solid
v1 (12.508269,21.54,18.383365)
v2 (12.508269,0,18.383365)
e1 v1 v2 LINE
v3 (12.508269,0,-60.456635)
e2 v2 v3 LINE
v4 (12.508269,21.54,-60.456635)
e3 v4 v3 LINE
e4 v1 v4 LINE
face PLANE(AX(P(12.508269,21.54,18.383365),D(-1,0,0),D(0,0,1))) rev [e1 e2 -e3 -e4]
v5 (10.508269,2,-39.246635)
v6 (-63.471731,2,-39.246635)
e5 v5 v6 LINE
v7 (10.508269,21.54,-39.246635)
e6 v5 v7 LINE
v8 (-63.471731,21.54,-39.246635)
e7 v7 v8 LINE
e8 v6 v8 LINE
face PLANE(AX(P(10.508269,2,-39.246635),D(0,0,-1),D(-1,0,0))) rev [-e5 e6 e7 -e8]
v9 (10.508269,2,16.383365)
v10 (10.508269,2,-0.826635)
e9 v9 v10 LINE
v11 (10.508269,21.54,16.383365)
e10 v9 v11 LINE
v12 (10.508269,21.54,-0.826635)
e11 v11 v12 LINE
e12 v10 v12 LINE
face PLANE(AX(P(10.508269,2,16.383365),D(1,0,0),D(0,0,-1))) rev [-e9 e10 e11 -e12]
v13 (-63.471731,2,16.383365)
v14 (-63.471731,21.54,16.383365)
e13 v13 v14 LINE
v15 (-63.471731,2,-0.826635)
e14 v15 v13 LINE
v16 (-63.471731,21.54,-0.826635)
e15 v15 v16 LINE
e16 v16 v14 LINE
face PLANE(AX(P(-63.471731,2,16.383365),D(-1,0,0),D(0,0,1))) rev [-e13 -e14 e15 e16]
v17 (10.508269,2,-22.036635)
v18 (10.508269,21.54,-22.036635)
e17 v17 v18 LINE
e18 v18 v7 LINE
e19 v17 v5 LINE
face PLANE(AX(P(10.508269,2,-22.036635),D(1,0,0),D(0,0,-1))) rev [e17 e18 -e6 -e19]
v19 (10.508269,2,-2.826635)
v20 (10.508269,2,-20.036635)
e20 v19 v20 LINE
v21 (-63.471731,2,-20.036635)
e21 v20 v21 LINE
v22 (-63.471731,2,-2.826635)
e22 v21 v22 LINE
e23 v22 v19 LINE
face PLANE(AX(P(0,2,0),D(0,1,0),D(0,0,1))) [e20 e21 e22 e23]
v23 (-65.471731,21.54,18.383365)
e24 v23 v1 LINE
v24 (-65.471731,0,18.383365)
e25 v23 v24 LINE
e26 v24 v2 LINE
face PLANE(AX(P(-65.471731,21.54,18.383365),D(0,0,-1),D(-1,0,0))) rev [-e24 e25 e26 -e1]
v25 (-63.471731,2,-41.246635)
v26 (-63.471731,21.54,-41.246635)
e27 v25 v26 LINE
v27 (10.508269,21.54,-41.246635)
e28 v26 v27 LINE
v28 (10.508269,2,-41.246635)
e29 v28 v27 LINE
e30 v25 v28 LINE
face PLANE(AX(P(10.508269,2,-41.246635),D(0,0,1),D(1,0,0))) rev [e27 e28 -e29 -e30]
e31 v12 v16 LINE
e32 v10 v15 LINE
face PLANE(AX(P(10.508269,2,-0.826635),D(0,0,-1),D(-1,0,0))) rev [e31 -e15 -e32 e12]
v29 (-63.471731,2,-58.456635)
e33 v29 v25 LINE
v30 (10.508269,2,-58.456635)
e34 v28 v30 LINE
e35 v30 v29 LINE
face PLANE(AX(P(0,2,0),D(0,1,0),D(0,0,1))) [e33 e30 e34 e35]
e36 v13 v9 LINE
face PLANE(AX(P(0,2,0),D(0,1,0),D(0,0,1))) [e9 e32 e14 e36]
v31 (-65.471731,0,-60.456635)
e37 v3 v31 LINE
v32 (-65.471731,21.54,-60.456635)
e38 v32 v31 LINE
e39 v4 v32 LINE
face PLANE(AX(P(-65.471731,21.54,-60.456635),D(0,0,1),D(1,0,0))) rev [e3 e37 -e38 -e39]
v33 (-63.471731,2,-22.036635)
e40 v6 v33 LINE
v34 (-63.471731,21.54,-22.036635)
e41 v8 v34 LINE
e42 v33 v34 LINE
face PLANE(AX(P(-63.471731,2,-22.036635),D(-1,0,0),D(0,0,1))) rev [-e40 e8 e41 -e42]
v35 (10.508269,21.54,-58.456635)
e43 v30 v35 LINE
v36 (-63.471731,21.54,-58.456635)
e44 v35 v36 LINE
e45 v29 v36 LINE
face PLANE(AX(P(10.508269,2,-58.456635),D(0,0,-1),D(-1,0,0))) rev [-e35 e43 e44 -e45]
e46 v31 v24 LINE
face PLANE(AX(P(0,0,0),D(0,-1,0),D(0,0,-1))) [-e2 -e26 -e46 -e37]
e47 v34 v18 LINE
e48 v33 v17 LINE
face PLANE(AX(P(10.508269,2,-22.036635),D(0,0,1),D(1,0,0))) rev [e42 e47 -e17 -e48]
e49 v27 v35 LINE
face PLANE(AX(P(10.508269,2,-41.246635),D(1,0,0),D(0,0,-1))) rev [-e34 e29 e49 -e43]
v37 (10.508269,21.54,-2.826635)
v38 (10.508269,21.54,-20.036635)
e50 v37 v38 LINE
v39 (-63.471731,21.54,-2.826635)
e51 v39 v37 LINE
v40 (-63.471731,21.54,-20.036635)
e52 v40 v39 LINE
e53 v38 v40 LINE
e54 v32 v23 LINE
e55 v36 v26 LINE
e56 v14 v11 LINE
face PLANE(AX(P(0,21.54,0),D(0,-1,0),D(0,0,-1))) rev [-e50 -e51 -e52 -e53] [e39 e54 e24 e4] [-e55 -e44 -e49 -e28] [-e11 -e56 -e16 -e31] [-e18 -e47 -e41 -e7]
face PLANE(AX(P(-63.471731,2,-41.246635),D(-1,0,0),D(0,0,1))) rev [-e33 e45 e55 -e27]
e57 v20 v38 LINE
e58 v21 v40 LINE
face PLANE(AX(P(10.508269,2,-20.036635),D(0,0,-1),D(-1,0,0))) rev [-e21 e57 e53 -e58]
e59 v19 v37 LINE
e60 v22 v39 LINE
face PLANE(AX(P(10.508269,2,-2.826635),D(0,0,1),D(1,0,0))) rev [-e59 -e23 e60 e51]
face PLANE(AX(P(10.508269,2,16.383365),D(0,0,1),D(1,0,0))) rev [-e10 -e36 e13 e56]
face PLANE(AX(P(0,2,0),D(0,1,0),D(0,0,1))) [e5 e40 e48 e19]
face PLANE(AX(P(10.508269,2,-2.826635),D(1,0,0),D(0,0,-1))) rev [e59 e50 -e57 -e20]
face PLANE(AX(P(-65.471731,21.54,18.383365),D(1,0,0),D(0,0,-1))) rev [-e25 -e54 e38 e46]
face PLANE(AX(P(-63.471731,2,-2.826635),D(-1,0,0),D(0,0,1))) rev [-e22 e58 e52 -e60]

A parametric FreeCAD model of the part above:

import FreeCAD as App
import Part
import Sketcher

V = App.Vector
Q = App.Units.Quantity

doc = App.newDocument("Part")
params = doc.addObject("Spreadsheet::Sheet", "Params")
for row, (alias, value) in enumerate([
    ("sketch1_width", "77.98 mm"),
    ("sketch1_height", "78.84 mm"),
    ("pad1_length", "21.54 mm"),
    ("sketch2_width", "73.98 mm"),
    ("sketch2_height", "17.21 mm"),
    ("pocket1_length", "19.54 mm"),
], start=1):
    params.set(f"A{row}", alias)
    params.set(f"B{row}", "=" + value)
    params.setAlias(f"B{row}", alias)

body = doc.addObject("PartDesign::Body", "Body")

# Sketch on XZ plane
sketch1 = body.newObject("Sketcher::SketchObject", "Sketch")
sketch1.AttachmentSupport = (doc.getObject("XZ_Plane"), [""])
sketch1.MapMode = "FlatFace"
sketch1.addGeometry(Part.LineSegment(V(-65, -60, 0), V(-65, 18, 0)), False)
sketch1.addGeometry(Part.LineSegment(V(-65, 18, 0), V(13, 18, 0)), False)
sketch1.addGeometry(Part.LineSegment(V(13, 18, 0), V(13, -60, 0)), False)
sketch1.addGeometry(Part.LineSegment(V(13, -60, 0), V(-65, -60, 0)), False)
sketch1.addConstraint(Sketcher.Constraint("Coincident", 0, 2, 1, 1))
sketch1.addConstraint(Sketcher.Constraint("Coincident", 1, 2, 2, 1))
sketch1.addConstraint(Sketcher.Constraint("Coincident", 2, 2, 3, 1))
sketch1.addConstraint(Sketcher.Constraint("Coincident", 3, 2, 0, 1))
sketch1.addConstraint(Sketcher.Constraint("Vertical", 0))
sketch1.addConstraint(Sketcher.Constraint("Horizontal", 1))
sketch1.addConstraint(Sketcher.Constraint("Vertical", 2))
sketch1.addConstraint(Sketcher.Constraint("Horizontal", 3))
sketch1.addConstraint(Sketcher.Constraint("DistanceX", 1, 1, 1, 2, Q("77.98 mm")))
sketch1.addConstraint(Sketcher.Constraint("DistanceY", 0, 1, 0, 2, Q("78.84 mm")))
sketch1.addConstraint(Sketcher.Constraint("DistanceX", 0, 2, -1, 1, Q("65.471731 mm")))
sketch1.addConstraint(Sketcher.Constraint("DistanceY", -1, 1, 0, 2, Q("18.383365 mm")))
sketch1.setExpression("Constraints[8]", "Params.sketch1_width")
sketch1.setExpression("Constraints[9]", "Params.sketch1_height")
pad1 = body.newObject("PartDesign::Pad", "Pad")
pad1.Profile = sketch1
pad1.setExpression("Length", "Params.pad1_length")
pad1.Reversed = True

# Sketch on XZ plane
sketch2 = body.newObject("Sketcher::SketchObject", "Sketch001")
sketch2.AttachmentSupport = (doc.getObject("XZ_Plane"), [""])
sketch2.MapMode = "FlatFace"
sketch2.AttachmentOffset = App.Placement(V(0, 0, -21.54), App.Rotation())
sketch2.addGeometry(Part.LineSegment(V(-63, -1, 0), V(-63, 16, 0)), False)
sketch2.addGeometry(Part.LineSegment(V(-63, 16, 0), V(11, 16, 0)), False)
sketch2.addGeometry(Part.LineSegment(V(11, 16, 0), V(11, -1, 0)), False)
sketch2.addGeometry(Part.LineSegment(V(11, -1, 0), V(-63, -1, 0)), False)
sketch2.addGeometry(Part.LineSegment(V(-63, -20, 0), V(-63, -3, 0)), False)
sketch2.addGeometry(Part.LineSegment(V(-63, -3, 0), V(11, -3, 0)), False)
sketch2.addGeometry(Part.LineSegment(V(11, -3, 0), V(11, -20, 0)), False)
sketch2.addGeometry(Part.LineSegment(V(11, -20, 0), V(-63, -20, 0)), False)
sketch2.addGeometry(Part.LineSegment(V(-63, -39, 0), V(-63, -22, 0)), False)
sketch2.addGeometry(Part.LineSegment(V(-63, -22, 0), V(11, -22, 0)), False)
sketch2.addGeometry(Part.LineSegment(V(11, -22, 0), V(11, -39, 0)), False)
sketch2.addGeometry(Part.LineSegment(V(11, -39, 0), V(-63, -39, 0)), False)
sketch2.addGeometry(Part.LineSegment(V(-63, -58, 0), V(-63, -41, 0)), False)
sketch2.addGeometry(Part.LineSegment(V(-63, -41, 0), V(11, -41, 0)), False)
sketch2.addGeometry(Part.LineSegment(V(11, -41, 0), V(11, -58, 0)), False)
sketch2.addGeometry(Part.LineSegment(V(11, -58, 0), V(-63, -58, 0)), False)
sketch2.addConstraint(Sketcher.Constraint("Coincident", 0, 2, 1, 1))
sketch2.addConstraint(Sketcher.Constraint("Coincident", 1, 2, 2, 1))
sketch2.addConstraint(Sketcher.Constraint("Coincident", 2, 2, 3, 1))
sketch2.addConstraint(Sketcher.Constraint("Coincident", 3, 2, 0, 1))
sketch2.addConstraint(Sketcher.Constraint("Coincident", 4, 2, 5, 1))
sketch2.addConstraint(Sketcher.Constraint("Coincident", 5, 2, 6, 1))
sketch2.addConstraint(Sketcher.Constraint("Coincident", 6, 2, 7, 1))
sketch2.addConstraint(Sketcher.Constraint("Coincident", 7, 2, 4, 1))
sketch2.addConstraint(Sketcher.Constraint("Coincident", 8, 2, 9, 1))
sketch2.addConstraint(Sketcher.Constraint("Coincident", 9, 2, 10, 1))
sketch2.addConstraint(Sketcher.Constraint("Coincident", 10, 2, 11, 1))
sketch2.addConstraint(Sketcher.Constraint("Coincident", 11, 2, 8, 1))
sketch2.addConstraint(Sketcher.Constraint("Coincident", 12, 2, 13, 1))
sketch2.addConstraint(Sketcher.Constraint("Coincident", 13, 2, 14, 1))
sketch2.addConstraint(Sketcher.Constraint("Coincident", 14, 2, 15, 1))
sketch2.addConstraint(Sketcher.Constraint("Coincident", 15, 2, 12, 1))
sketch2.addConstraint(Sketcher.Constraint("Vertical", 0))
sketch2.addConstraint(Sketcher.Constraint("Horizontal", 1))
sketch2.addConstraint(Sketcher.Constraint("Vertical", 2))
sketch2.addConstraint(Sketcher.Constraint("Horizontal", 3))
sketch2.addConstraint(Sketcher.Constraint("Vertical", 4))
sketch2.addConstraint(Sketcher.Constraint("Horizontal", 5))
sketch2.addConstraint(Sketcher.Constraint("Vertical", 6))
sketch2.addConstraint(Sketcher.Constraint("Horizontal", 7))
sketch2.addConstraint(Sketcher.Constraint("Vertical", 8))
sketch2.addConstraint(Sketcher.Constraint("Horizontal", 9))
sketch2.addConstraint(Sketcher.Constraint("Vertical", 10))
sketch2.addConstraint(Sketcher.Constraint("Horizontal", 11))
sketch2.addConstraint(Sketcher.Constraint("Vertical", 12))
sketch2.addConstraint(Sketcher.Constraint("Horizontal", 13))
sketch2.addConstraint(Sketcher.Constraint("Vertical", 14))
sketch2.addConstraint(Sketcher.Constraint("Horizontal", 15))
sketch2.addConstraint(Sketcher.Constraint("Vertical", 3, 2, 4, 2))
sketch2.addConstraint(Sketcher.Constraint("Vertical", 2, 2, 5, 2))
sketch2.addConstraint(Sketcher.Constraint("Vertical", 7, 2, 8, 2))
sketch2.addConstraint(Sketcher.Constraint("Vertical", 6, 2, 9, 2))
sketch2.addConstraint(Sketcher.Constraint("Vertical", 11, 2, 12, 2))
sketch2.addConstraint(Sketcher.Constraint("Vertical", 10, 2, 13, 2))
sketch2.addConstraint(Sketcher.Constraint("Equal", 2, 4))
sketch2.addConstraint(Sketcher.Constraint("Equal", 6, 8))
sketch2.addConstraint(Sketcher.Constraint("Equal", 10, 12))
sketch2.addConstraint(Sketcher.Constraint("DistanceY", 4, 2, 3, 2, Q("2 mm")))
sketch2.addConstraint(Sketcher.Constraint("DistanceY", 8, 2, 7, 2, Q("2 mm")))
sketch2.addConstraint(Sketcher.Constraint("DistanceY", 12, 2, 11, 2, Q("2 mm")))
sketch2.addConstraint(Sketcher.Constraint("DistanceX", 1, 1, 1, 2, Q("73.98 mm")))
sketch2.addConstraint(Sketcher.Constraint("DistanceY", 0, 1, 0, 2, Q("17.21 mm")))
sketch2.addConstraint(Sketcher.Constraint("DistanceX", 0, 2, -1, 1, Q("63.471731 mm")))
sketch2.addConstraint(Sketcher.Constraint("DistanceY", -1, 1, 0, 2, Q("16.383365 mm")))
sketch2.setExpression("Constraints[44]", "Params.sketch2_width")
sketch2.setExpression("Constraints[45]", "Params.sketch2_height")
pocket1 = body.newObject("PartDesign::Pocket", "Pocket")
pocket1.Profile = sketch2
pocket1.setExpression("Length", "Params.pocket1_length")
pocket1.Reversed = True

doc.recompute()
